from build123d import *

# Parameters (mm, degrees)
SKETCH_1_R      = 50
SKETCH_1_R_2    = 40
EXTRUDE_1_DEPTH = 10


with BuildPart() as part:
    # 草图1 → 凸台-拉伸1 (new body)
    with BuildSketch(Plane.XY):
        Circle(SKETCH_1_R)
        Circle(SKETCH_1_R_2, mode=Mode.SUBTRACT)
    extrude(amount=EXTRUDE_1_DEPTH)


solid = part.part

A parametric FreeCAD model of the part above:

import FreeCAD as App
import Part
import Sketcher
from FreeCAD import Vector
Q = App.Units.Quantity

doc = App.newDocument("Part")
body = doc.addObject("PartDesign::Body", "Body")

sketch1 = doc.addObject("Sketcher::SketchObject", "Sketch")
body.addObject(sketch1)
sketch1.AttachmentSupport = (doc.XY_Plane, [""])
sketch1.MapMode = "FlatFace"
sketch1.addGeometry([
    Part.Circle(Vector(0, 0, 0), Vector(0, 0, 1), 50),
    Part.Circle(Vector(0, 0, 0), Vector(0, 0, 1), 40),
], False)
sketch1.addConstraint([
    Sketcher.Constraint("Coincident", 0, 3, -1, 1),
    Sketcher.Constraint("Coincident", 1, 3, -1, 1),
    Sketcher.Constraint("Diameter", 0, Q("100 mm")),
    Sketcher.Constraint("Diameter", 1, Q("80 mm")),
])
pad1 = doc.addObject("PartDesign::Pad", "Pad")
body.addObject(pad1)
pad1.Profile = sketch1
pad1.Length = 10

doc.recompute()
